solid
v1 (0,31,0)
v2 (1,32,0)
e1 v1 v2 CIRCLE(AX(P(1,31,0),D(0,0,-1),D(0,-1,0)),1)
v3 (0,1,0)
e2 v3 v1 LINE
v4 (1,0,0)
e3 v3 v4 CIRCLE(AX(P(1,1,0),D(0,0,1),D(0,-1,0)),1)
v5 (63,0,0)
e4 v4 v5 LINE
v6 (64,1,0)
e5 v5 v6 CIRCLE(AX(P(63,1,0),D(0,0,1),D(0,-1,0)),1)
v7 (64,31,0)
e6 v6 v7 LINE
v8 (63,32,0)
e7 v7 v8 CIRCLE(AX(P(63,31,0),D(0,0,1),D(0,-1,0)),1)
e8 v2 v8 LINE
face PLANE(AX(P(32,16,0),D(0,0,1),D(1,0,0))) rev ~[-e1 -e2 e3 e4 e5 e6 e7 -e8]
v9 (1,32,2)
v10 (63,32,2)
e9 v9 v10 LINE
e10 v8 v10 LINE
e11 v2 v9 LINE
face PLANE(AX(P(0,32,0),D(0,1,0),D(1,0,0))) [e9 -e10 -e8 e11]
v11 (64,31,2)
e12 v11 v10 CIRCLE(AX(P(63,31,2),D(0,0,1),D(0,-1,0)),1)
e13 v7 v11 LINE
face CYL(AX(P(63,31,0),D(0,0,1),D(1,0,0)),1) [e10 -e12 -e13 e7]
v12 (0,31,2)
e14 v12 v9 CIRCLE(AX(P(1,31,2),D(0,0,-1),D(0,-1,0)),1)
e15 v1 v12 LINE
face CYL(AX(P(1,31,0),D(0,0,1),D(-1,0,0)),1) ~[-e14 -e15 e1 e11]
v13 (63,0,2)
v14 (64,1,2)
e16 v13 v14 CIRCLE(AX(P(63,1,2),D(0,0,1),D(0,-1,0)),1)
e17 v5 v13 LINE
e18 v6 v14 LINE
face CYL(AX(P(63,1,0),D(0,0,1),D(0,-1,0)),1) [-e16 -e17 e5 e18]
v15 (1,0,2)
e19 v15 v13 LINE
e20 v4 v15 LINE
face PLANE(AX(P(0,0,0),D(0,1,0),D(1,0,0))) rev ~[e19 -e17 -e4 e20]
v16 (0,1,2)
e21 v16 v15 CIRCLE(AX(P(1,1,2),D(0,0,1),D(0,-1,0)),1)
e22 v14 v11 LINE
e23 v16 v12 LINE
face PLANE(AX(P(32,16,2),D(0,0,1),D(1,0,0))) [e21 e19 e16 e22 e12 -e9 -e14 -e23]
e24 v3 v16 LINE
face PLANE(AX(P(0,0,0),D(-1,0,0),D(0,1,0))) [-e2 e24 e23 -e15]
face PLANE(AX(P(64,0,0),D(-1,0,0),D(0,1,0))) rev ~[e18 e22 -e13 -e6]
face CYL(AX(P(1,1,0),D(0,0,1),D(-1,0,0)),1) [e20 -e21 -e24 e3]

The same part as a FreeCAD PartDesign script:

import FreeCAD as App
import Part
import Sketcher

V = App.Vector


def edges_at(feature, points):
    """Names of the edges that pass closest to the given points."""
    edges = feature.Shape.Edges
    near = lambda p: min(range(len(edges)), key=lambda i: edges[i].distToShape(Part.Vertex(*p))[0])
    return sorted({f"Edge{near(p) + 1}" for p in points})

doc = App.newDocument("Part")
params = doc.addObject("Spreadsheet::Sheet", "Params")
for row, (alias, value) in enumerate([
    ("sketch1_width", "64 mm"),
    ("sketch1_height", "32 mm"),
    ("pad1_length", "2 mm"),
    ("fillet_radius", "1 mm"),
], start=1):
    params.set(f"A{row}", alias)
    params.set(f"B{row}", "=" + value)
    params.setAlias(f"B{row}", alias)

body = doc.addObject("PartDesign::Body", "Body")

sketch1 = body.newObject("Sketcher::SketchObject", "Sketch")
sketch1.AttachmentSupport = (doc.getObject("XY_Plane"), [""])
sketch1.MapMode = "FlatFace"
sketch1.addGeometry(Part.LineSegment(V(0, 32, 0), V(0, 0, 0)), False)
sketch1.addGeometry(Part.LineSegment(V(0, 0, 0), V(64, 0, 0)), False)
sketch1.addGeometry(Part.LineSegment(V(64, 0, 0), V(64, 32, 0)), False)
sketch1.addGeometry(Part.LineSegment(V(64, 32, 0), V(0, 32, 0)), False)
sketch1.addConstraint(Sketcher.Constraint("Coincident", 0, 2, 1, 1))
sketch1.addConstraint(Sketcher.Constraint("Coincident", 1, 2, 2, 1))
sketch1.addConstraint(Sketcher.Constraint("Coincident", 2, 2, 3, 1))
sketch1.addConstraint(Sketcher.Constraint("Coincident", 3, 2, 0, 1))
sketch1.addConstraint(Sketcher.Constraint("Vertical", 0))
sketch1.addConstraint(Sketcher.Constraint("Horizontal", 1))
sketch1.addConstraint(Sketcher.Constraint("Vertical", 2))
sketch1.addConstraint(Sketcher.Constraint("Horizontal", 3))
sketch1.addConstraint(Sketcher.Constraint("Coincident", 0, 2, -1, 1))
sketch1.addConstraint(Sketcher.Constraint("DistanceX", 1, 1, 1, 2, 64.0))
sketch1.addConstraint(Sketcher.Constraint("DistanceY", 0, 2, 0, 1, 32.0))
sketch1.setExpression("Constraints[9]", "Params.sketch1_width")
sketch1.setExpression("Constraints[10]", "Params.sketch1_height")
pad1 = body.newObject("PartDesign::Pad", "Pad")
pad1.Profile = sketch1
pad1.setExpression("Length", "Params.pad1_length")
doc.recompute()

fillet = body.newObject("PartDesign::Fillet", "Fillet")
fillet.Base = (pad1, edges_at(pad1, [
    (64, 32, 1),
    (0, 32, 1),
    (0, 0, 1),
    (64, 0, 1),
]))
fillet.setExpression("Radius", "Params.fillet_radius")

doc.recompute()
